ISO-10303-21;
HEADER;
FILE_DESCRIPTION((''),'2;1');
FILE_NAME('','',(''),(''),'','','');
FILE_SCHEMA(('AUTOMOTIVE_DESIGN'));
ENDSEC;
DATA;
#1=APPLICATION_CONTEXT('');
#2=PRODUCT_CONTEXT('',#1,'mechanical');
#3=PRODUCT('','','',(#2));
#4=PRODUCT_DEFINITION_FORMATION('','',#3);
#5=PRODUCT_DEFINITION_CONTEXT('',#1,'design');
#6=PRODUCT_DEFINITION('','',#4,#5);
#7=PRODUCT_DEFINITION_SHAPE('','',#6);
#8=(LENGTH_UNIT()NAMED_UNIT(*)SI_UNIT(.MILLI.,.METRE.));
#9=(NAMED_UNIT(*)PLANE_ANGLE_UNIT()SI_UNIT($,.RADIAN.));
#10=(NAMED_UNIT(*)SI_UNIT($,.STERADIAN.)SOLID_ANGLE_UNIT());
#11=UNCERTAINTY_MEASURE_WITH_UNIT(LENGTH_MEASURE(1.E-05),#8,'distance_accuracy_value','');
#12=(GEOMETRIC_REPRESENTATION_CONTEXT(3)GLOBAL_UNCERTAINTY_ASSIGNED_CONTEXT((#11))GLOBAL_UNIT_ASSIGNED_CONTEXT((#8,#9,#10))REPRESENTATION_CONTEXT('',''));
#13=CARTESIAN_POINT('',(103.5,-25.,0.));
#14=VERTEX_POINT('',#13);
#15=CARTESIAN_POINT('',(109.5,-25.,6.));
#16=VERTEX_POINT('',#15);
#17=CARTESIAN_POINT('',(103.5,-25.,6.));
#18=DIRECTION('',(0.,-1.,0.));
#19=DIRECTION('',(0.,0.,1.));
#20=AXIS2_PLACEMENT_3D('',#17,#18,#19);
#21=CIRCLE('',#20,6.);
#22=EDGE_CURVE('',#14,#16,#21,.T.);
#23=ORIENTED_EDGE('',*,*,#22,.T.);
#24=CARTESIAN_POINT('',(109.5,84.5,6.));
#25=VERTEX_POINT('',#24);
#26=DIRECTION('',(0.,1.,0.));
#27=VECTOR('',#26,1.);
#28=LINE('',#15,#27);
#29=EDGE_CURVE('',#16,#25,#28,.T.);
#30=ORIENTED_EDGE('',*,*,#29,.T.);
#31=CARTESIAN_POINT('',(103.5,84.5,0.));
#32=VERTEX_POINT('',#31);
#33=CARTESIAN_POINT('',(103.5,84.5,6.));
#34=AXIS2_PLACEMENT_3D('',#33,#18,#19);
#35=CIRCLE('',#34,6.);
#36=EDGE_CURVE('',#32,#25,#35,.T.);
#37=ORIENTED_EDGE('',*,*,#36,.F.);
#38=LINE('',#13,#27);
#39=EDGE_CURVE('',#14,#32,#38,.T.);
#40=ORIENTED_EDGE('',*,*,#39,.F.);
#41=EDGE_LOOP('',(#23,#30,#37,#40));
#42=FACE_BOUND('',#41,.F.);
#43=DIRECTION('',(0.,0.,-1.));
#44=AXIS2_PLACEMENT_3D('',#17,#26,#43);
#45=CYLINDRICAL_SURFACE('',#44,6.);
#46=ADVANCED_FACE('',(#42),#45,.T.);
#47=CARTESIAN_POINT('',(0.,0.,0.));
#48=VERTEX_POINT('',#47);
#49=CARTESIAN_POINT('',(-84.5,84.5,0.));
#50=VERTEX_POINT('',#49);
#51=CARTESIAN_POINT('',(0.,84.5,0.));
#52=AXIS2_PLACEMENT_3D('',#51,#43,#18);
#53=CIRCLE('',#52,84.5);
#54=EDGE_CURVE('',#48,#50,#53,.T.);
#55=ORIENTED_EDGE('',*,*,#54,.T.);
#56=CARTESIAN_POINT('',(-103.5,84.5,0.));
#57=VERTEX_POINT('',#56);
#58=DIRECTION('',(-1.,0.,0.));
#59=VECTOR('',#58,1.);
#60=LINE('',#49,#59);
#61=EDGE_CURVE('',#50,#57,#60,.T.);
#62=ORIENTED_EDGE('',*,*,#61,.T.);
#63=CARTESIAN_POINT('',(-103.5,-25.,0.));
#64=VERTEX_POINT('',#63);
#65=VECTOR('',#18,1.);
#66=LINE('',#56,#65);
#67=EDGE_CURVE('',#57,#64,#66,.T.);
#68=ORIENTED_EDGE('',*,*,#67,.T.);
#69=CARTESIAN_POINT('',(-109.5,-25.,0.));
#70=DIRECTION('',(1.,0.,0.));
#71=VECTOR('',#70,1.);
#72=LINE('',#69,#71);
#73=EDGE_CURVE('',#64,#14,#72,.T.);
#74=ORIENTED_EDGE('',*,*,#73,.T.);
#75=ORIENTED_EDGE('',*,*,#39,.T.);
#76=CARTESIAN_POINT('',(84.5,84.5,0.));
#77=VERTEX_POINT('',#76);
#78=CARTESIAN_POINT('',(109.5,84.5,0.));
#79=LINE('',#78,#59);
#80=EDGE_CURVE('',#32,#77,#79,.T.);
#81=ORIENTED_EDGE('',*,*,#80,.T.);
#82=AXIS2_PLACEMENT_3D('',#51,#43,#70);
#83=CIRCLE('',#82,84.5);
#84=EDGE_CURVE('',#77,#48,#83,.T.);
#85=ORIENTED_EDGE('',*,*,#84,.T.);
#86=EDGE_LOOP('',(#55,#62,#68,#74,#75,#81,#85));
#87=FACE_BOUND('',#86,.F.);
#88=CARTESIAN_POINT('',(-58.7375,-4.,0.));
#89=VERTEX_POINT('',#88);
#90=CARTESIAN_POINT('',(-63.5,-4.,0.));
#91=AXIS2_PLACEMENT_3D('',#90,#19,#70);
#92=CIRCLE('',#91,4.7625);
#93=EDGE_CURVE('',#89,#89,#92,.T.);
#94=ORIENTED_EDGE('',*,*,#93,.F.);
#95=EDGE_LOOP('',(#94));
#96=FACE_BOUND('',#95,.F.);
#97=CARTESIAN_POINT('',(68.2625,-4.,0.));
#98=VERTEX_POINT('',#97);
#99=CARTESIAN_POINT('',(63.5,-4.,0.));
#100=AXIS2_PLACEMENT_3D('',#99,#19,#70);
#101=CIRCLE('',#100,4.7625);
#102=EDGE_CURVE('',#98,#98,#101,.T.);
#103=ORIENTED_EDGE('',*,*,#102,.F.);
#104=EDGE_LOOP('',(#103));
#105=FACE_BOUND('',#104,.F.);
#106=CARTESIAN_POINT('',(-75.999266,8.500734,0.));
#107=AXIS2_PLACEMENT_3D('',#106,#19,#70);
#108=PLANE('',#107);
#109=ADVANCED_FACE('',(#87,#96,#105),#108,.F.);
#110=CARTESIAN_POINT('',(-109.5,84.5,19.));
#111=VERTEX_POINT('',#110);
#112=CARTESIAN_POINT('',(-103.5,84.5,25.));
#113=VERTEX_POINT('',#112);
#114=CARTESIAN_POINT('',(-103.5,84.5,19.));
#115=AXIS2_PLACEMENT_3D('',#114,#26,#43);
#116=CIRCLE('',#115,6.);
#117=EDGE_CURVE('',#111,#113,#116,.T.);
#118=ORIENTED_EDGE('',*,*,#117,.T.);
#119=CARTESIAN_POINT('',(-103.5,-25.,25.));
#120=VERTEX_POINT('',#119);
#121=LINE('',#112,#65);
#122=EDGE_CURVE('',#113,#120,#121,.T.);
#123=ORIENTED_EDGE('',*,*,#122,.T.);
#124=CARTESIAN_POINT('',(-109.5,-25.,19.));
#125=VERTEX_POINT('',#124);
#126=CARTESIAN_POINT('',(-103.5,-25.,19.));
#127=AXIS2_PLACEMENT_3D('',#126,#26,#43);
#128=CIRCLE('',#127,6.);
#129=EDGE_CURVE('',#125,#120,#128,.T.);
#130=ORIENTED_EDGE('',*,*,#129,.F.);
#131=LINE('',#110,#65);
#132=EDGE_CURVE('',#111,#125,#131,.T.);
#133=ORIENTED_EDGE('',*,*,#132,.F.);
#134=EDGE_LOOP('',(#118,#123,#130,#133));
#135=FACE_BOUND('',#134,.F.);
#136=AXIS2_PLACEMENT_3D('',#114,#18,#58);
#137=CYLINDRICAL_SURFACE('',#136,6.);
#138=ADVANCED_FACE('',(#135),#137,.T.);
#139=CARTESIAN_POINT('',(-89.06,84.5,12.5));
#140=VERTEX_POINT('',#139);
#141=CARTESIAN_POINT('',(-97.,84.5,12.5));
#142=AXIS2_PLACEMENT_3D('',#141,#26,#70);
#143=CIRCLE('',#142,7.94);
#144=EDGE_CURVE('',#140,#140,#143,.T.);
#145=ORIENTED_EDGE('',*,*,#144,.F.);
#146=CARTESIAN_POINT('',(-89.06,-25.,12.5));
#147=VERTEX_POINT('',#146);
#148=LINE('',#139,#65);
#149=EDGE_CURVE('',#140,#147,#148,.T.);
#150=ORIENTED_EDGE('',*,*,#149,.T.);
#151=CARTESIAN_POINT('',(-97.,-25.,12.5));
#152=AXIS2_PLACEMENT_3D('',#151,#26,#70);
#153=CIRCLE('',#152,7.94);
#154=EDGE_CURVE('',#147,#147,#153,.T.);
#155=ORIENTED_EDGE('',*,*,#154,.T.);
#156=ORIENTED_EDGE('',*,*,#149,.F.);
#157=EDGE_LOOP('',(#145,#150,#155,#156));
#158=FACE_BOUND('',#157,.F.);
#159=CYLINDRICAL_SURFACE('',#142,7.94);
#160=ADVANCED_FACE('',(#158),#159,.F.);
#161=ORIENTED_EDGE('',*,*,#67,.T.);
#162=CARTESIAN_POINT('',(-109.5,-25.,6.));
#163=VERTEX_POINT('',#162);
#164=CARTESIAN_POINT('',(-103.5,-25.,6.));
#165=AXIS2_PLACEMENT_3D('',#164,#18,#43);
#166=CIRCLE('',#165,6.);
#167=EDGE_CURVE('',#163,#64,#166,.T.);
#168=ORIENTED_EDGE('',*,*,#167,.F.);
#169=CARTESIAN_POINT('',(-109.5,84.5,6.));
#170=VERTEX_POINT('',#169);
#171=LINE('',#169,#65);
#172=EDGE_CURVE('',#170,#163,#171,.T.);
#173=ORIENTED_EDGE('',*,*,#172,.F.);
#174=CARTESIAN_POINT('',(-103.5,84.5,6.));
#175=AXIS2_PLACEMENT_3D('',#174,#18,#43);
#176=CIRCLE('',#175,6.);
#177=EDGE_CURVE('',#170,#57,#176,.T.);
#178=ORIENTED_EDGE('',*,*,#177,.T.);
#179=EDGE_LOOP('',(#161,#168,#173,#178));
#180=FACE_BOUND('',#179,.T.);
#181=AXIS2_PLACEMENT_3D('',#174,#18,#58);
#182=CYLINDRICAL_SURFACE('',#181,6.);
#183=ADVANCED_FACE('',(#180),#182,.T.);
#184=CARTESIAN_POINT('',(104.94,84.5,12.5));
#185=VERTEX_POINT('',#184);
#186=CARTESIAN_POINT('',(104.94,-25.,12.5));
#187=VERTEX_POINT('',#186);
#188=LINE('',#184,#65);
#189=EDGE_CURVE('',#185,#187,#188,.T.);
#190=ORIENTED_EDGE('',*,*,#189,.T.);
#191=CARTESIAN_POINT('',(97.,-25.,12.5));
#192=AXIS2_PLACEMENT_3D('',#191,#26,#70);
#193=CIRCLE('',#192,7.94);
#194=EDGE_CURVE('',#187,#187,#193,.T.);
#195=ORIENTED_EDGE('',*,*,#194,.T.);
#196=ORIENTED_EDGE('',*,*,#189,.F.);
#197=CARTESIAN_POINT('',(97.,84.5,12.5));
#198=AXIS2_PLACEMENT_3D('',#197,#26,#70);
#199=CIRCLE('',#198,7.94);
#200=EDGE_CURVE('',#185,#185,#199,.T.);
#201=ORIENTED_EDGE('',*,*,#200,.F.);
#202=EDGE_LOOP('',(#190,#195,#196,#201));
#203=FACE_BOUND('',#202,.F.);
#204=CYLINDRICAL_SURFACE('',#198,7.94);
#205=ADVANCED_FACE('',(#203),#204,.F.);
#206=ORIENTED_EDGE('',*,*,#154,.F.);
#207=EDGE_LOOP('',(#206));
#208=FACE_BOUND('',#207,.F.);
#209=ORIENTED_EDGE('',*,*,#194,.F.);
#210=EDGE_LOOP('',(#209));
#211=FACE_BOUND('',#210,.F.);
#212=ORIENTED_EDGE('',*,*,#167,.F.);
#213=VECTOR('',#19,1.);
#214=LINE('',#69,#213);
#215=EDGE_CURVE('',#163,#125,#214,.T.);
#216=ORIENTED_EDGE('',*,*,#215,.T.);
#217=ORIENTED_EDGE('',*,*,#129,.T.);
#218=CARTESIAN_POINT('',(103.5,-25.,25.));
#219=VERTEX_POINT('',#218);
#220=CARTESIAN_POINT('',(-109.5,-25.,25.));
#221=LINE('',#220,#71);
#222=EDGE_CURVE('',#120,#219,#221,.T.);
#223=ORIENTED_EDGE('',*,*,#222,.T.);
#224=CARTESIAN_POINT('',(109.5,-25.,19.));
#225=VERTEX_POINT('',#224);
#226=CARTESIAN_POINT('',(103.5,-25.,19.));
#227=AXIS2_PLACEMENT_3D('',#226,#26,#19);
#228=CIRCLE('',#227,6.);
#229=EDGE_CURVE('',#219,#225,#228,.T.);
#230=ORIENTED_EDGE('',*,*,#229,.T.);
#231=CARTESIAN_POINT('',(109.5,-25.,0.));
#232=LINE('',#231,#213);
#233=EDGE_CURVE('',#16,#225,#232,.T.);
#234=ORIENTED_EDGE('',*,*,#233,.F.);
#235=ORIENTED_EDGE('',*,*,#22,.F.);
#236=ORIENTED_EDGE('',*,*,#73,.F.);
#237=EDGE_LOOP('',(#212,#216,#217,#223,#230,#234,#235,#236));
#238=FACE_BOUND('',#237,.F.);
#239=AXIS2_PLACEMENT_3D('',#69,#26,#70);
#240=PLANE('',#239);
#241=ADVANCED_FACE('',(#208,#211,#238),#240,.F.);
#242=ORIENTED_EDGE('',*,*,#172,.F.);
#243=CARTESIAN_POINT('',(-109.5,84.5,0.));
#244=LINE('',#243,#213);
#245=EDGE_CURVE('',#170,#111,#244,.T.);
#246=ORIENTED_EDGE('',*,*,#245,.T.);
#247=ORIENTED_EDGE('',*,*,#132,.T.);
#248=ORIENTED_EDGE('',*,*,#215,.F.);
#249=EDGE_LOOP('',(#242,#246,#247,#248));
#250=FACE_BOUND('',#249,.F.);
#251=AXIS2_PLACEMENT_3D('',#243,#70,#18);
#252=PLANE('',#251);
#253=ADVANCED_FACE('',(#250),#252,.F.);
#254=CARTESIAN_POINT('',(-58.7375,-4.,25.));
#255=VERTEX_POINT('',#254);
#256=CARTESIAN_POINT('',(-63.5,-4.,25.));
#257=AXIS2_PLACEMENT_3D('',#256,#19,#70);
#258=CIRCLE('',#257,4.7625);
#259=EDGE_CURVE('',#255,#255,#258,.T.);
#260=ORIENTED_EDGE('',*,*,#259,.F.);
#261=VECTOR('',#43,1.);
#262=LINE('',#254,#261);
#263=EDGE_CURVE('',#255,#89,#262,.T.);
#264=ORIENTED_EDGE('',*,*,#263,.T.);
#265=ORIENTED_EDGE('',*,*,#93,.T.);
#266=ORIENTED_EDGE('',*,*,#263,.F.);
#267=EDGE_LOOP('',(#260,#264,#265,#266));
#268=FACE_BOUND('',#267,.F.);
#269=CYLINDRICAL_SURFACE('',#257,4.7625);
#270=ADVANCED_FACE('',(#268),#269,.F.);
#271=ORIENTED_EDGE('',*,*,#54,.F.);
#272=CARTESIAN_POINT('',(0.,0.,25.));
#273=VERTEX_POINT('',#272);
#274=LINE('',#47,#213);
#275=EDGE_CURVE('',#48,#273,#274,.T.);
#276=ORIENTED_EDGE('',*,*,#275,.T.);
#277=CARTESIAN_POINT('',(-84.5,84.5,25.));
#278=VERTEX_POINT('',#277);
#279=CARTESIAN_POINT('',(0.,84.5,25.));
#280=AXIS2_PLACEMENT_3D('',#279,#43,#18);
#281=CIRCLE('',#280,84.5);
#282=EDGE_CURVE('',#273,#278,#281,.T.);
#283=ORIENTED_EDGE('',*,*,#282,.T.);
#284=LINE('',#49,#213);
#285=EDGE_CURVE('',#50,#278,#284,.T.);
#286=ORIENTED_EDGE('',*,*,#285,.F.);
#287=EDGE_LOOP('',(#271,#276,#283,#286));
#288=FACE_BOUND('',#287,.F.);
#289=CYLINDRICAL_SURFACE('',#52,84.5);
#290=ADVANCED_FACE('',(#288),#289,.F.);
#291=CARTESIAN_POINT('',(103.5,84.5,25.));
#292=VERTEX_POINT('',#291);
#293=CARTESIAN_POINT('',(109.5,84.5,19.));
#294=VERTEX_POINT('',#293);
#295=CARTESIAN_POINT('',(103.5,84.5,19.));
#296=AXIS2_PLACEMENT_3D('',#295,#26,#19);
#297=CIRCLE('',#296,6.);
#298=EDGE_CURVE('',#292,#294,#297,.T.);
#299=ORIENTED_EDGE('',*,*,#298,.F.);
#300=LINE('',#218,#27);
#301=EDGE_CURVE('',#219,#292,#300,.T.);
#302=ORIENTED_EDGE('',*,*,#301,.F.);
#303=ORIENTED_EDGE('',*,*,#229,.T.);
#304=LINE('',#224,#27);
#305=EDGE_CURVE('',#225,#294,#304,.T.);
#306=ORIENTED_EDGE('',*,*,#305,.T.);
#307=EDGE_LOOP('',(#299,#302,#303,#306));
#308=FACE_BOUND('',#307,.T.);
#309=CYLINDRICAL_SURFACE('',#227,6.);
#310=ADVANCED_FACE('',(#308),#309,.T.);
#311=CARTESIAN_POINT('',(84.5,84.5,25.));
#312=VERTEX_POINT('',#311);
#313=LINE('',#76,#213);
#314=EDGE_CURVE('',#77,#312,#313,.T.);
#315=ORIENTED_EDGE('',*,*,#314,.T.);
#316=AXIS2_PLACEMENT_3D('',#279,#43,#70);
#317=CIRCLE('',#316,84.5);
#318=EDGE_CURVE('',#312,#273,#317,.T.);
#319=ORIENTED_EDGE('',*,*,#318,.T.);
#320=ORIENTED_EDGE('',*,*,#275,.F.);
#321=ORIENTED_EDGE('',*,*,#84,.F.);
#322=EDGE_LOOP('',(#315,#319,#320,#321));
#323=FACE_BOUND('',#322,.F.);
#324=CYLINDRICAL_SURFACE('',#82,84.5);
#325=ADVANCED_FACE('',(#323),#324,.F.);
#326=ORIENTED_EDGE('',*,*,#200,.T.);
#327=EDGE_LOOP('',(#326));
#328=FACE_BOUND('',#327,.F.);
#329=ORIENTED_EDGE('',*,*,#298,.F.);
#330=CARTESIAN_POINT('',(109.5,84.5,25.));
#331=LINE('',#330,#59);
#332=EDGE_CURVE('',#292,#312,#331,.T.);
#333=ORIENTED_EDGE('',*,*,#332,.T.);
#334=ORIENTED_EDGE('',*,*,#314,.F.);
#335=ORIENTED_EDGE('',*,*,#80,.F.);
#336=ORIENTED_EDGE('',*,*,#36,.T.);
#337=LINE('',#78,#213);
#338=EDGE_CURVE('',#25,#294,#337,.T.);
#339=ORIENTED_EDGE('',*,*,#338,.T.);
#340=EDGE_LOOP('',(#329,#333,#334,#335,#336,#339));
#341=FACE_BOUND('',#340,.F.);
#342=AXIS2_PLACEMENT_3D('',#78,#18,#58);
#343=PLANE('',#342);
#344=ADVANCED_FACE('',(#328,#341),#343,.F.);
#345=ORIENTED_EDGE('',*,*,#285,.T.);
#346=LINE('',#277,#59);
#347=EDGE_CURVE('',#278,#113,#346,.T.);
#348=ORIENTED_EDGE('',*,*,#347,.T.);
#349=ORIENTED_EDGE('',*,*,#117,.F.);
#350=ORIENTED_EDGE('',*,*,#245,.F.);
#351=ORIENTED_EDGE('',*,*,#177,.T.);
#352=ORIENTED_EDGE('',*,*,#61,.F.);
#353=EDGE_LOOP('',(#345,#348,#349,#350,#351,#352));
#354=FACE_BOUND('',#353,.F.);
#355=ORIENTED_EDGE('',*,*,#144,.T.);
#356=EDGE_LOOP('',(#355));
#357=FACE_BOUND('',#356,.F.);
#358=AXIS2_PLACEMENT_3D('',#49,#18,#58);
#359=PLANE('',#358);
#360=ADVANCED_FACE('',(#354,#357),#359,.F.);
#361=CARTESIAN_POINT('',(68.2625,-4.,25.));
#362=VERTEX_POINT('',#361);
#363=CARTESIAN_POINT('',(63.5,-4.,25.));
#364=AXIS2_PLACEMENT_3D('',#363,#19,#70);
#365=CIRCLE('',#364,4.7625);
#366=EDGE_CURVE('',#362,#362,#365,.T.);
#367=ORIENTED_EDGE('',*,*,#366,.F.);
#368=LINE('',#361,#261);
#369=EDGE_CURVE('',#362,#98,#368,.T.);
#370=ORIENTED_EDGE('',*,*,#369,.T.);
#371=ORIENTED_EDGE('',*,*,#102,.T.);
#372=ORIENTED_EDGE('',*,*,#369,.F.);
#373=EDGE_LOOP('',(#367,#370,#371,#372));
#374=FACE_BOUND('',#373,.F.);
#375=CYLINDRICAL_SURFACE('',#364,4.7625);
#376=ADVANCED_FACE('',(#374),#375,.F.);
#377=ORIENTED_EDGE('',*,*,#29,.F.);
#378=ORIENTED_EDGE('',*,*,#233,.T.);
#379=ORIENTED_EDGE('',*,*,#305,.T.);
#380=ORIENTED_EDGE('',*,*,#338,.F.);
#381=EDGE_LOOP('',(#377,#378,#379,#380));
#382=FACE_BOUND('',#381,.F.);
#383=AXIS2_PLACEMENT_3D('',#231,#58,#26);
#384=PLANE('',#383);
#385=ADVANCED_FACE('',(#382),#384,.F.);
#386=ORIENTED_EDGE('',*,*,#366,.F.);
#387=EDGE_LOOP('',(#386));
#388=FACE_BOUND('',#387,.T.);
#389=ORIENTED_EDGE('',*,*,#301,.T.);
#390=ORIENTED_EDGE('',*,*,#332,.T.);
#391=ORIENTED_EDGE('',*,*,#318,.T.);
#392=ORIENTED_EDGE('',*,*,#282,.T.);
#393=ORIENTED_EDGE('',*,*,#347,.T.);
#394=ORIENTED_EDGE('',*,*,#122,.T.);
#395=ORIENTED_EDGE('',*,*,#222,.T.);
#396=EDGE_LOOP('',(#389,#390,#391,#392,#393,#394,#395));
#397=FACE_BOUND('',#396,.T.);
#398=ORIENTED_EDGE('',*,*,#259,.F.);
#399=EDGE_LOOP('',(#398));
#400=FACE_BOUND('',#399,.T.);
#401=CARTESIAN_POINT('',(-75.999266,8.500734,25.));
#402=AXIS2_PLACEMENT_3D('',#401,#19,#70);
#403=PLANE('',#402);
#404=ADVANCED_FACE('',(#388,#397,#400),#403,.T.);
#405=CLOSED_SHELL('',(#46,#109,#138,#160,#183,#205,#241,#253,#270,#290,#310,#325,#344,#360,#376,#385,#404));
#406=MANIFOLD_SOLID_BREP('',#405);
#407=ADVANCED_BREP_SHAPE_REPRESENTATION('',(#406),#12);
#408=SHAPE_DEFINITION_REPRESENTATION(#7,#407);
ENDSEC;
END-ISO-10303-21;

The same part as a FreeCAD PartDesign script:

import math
import FreeCAD as App
import Part
import Sketcher
Q = App.Units.Quantity


def edges_at(feature, points):
    """Names of the edges that pass closest to the given points."""
    edges = feature.Shape.Edges
    near = lambda p: min(range(len(edges)), key=lambda i: edges[i].distToShape(Part.Vertex(*p))[0])
    return sorted({f"Edge{near(p) + 1}" for p in points})

doc = App.newDocument("Part")
params = doc.addObject("Spreadsheet::Sheet", "Params")
for row, (alias, value) in enumerate([
    ("sketch1_radius", "84.5 mm"),
    ("sketch1_width", "219 mm"),
    ("sketch1_height", "109.5 mm"),
    ("pad1_length", "25 mm"),
    ("sketch2_diameter", "15.88 mm"),
    ("pocket1_length", "5000 mm"),
    ("pocket2_length", "5000 mm"),
    ("fillet_radius", "6 mm"),
], start=1):
    params.set(f"A{row}", alias)
    params.set(f"B{row}", "=" + value)
    params.setAlias(f"B{row}", alias)

body = doc.addObject("PartDesign::Body", "Body")

# Sketch on XY plane
sketch1 = body.newObject("Sketcher::SketchObject", "Sketch")
sketch1.AttachmentSupport = (doc.getObject("XY_Plane"), [""])
sketch1.MapMode = "FlatFace"
sketch1.addGeometry([
    Part.LineSegment(App.Vector(-109.5, 84.5, 0), App.Vector(-109.5, -25, 0)),  # 0
    Part.LineSegment(App.Vector(-109.5, -25, 0), App.Vector(109.5, -25, 0)),  # 1
    Part.LineSegment(App.Vector(109.5, -25, 0), App.Vector(109.5, 84.5, 0)),  # 2
    Part.LineSegment(App.Vector(109.5, 84.5, 0), App.Vector(84.5, 84.5, 0)),  # 3
    Part.ArcOfCircle(Part.Circle(App.Vector(0, 84.5, 0), App.Vector(0, 0, 1), 84.5), math.radians(-90), math.radians(0)),  # 4
    Part.ArcOfCircle(Part.Circle(App.Vector(0, 84.5, 0), App.Vector(0, 0, 1), 84.5), math.radians(-180), math.radians(-90)),  # 5
    Part.LineSegment(App.Vector(-84.5, 84.5, 0), App.Vector(-109.5, 84.5, 0)),  # 6
], False)
sketch1.addConstraint([
    Sketcher.Constraint("Coincident", 0, 2, 1, 1),
    Sketcher.Constraint("Coincident", 1, 2, 2, 1),
    Sketcher.Constraint("Coincident", 2, 2, 3, 1),
    Sketcher.Constraint("Coincident", 3, 2, 4, 2),
    Sketcher.Constraint("Tangent", 4, 1, 5, 2),
    Sketcher.Constraint("Coincident", 5, 1, 6, 1),
    Sketcher.Constraint("Coincident", 6, 2, 0, 1),
    Sketcher.Constraint("Vertical", 0),
    Sketcher.Constraint("Horizontal", 1),
    Sketcher.Constraint("Vertical", 2),
    Sketcher.Constraint("Horizontal", 3),
    Sketcher.Constraint("Horizontal", 6),
    Sketcher.Constraint("Coincident", 4, 1, -1, 1),
    Sketcher.Constraint("Equal", 4, 5),
    Sketcher.Constraint("Symmetric", 3, 2, 5, 1, -2),
    Sketcher.Constraint("Horizontal", 5, 3, 2, 2),
    Sketcher.Constraint("Equal", 3, 6),
    Sketcher.Constraint("Radius", 4, Q("84.5 mm")),
    Sketcher.Constraint("DistanceX", 1, 1, 1, 2, Q("219 mm")),
    Sketcher.Constraint("DistanceY", 0, 2, 0, 1, Q("109.5 mm")),
])
sketch1.setExpression("Constraints[17]", "Params.sketch1_radius")
sketch1.setExpression("Constraints[18]", "Params.sketch1_width")
sketch1.setExpression("Constraints[19]", "Params.sketch1_height")
pad1 = body.newObject("PartDesign::Pad", "Pad")
pad1.Profile = sketch1
pad1.setExpression("Length", "Params.pad1_length")

# Sketch on XZ plane
sketch2 = body.newObject("Sketcher::SketchObject", "Sketch001")
sketch2.AttachmentSupport = (doc.getObject("XZ_Plane"), [""])
sketch2.MapMode = "FlatFace"
sketch2.AttachmentOffset = App.Placement(App.Vector(0, 0, -84.5), App.Rotation())
sketch2.addGeometry([
    Part.Circle(App.Vector(-97, 12.5, 0), App.Vector(0, 0, 1), 7.94),
    Part.Circle(App.Vector(97, 12.5, 0), App.Vector(0, 0, 1), 7.94),
], False)
sketch2.addConstraint([
    Sketcher.Constraint("Equal", 0, 1),
    Sketcher.Constraint("Symmetric", 0, 3, 1, 3, -2),
    Sketcher.Constraint("Diameter", 0, Q("15.88 mm")),
    Sketcher.Constraint("DistanceX", 0, 3, -1, 1, Q("97 mm")),
    Sketcher.Constraint("DistanceY", -1, 1, 0, 3, Q("12.5 mm")),
])
sketch2.setExpression("Constraints[2]", "Params.sketch2_diameter")
pocket1 = body.newObject("PartDesign::Pocket", "Pocket")
pocket1.Profile = sketch2
pocket1.setExpression("Length", "Params.pocket1_length")
pocket1.Reversed = True

# Sketch on XY plane
sketch3 = body.newObject("Sketcher::SketchObject", "Sketch002")
sketch3.AttachmentSupport = (doc.getObject("XY_Plane"), [""])
sketch3.MapMode = "FlatFace"
sketch3.AttachmentOffset = App.Placement(App.Vector(0, 0, 25), App.Rotation())
sketch3.addGeometry([
    Part.Circle(App.Vector(-63.5, -4, 0), App.Vector(0, 0, 1), 4.7625),
    Part.Circle(App.Vector(63.5, -4, 0), App.Vector(0, 0, 1), 4.7625),
], False)
sketch3.addConstraint([
    Sketcher.Constraint("Equal", 0, 1),
    Sketcher.Constraint("Symmetric", 0, 3, 1, 3, -2),
    Sketcher.Constraint("Diameter", 0, Q("9.525 mm")),
    Sketcher.Constraint("DistanceY", 0, 3, -1, 1, Q("4 mm")),
    Sketcher.Constraint("DistanceX", 0, 3, 1, 3, Q("127 mm")),
])
pocket2 = body.newObject("PartDesign::Pocket", "Pocket001")
pocket2.Profile = sketch3
pocket2.setExpression("Length", "Params.pocket2_length")
doc.recompute()

fillet = body.newObject("PartDesign::Fillet", "Fillet")
fillet.Base = (pocket2, edges_at(pocket2, [
    (109.5, 29.75, 25),
    (-109.5, 29.75, 25),
    (-109.5, 29.75, 0),
    (109.5, 29.75, 0),
]))
fillet.setExpression("Radius", "Params.fillet_radius")

doc.recompute()
